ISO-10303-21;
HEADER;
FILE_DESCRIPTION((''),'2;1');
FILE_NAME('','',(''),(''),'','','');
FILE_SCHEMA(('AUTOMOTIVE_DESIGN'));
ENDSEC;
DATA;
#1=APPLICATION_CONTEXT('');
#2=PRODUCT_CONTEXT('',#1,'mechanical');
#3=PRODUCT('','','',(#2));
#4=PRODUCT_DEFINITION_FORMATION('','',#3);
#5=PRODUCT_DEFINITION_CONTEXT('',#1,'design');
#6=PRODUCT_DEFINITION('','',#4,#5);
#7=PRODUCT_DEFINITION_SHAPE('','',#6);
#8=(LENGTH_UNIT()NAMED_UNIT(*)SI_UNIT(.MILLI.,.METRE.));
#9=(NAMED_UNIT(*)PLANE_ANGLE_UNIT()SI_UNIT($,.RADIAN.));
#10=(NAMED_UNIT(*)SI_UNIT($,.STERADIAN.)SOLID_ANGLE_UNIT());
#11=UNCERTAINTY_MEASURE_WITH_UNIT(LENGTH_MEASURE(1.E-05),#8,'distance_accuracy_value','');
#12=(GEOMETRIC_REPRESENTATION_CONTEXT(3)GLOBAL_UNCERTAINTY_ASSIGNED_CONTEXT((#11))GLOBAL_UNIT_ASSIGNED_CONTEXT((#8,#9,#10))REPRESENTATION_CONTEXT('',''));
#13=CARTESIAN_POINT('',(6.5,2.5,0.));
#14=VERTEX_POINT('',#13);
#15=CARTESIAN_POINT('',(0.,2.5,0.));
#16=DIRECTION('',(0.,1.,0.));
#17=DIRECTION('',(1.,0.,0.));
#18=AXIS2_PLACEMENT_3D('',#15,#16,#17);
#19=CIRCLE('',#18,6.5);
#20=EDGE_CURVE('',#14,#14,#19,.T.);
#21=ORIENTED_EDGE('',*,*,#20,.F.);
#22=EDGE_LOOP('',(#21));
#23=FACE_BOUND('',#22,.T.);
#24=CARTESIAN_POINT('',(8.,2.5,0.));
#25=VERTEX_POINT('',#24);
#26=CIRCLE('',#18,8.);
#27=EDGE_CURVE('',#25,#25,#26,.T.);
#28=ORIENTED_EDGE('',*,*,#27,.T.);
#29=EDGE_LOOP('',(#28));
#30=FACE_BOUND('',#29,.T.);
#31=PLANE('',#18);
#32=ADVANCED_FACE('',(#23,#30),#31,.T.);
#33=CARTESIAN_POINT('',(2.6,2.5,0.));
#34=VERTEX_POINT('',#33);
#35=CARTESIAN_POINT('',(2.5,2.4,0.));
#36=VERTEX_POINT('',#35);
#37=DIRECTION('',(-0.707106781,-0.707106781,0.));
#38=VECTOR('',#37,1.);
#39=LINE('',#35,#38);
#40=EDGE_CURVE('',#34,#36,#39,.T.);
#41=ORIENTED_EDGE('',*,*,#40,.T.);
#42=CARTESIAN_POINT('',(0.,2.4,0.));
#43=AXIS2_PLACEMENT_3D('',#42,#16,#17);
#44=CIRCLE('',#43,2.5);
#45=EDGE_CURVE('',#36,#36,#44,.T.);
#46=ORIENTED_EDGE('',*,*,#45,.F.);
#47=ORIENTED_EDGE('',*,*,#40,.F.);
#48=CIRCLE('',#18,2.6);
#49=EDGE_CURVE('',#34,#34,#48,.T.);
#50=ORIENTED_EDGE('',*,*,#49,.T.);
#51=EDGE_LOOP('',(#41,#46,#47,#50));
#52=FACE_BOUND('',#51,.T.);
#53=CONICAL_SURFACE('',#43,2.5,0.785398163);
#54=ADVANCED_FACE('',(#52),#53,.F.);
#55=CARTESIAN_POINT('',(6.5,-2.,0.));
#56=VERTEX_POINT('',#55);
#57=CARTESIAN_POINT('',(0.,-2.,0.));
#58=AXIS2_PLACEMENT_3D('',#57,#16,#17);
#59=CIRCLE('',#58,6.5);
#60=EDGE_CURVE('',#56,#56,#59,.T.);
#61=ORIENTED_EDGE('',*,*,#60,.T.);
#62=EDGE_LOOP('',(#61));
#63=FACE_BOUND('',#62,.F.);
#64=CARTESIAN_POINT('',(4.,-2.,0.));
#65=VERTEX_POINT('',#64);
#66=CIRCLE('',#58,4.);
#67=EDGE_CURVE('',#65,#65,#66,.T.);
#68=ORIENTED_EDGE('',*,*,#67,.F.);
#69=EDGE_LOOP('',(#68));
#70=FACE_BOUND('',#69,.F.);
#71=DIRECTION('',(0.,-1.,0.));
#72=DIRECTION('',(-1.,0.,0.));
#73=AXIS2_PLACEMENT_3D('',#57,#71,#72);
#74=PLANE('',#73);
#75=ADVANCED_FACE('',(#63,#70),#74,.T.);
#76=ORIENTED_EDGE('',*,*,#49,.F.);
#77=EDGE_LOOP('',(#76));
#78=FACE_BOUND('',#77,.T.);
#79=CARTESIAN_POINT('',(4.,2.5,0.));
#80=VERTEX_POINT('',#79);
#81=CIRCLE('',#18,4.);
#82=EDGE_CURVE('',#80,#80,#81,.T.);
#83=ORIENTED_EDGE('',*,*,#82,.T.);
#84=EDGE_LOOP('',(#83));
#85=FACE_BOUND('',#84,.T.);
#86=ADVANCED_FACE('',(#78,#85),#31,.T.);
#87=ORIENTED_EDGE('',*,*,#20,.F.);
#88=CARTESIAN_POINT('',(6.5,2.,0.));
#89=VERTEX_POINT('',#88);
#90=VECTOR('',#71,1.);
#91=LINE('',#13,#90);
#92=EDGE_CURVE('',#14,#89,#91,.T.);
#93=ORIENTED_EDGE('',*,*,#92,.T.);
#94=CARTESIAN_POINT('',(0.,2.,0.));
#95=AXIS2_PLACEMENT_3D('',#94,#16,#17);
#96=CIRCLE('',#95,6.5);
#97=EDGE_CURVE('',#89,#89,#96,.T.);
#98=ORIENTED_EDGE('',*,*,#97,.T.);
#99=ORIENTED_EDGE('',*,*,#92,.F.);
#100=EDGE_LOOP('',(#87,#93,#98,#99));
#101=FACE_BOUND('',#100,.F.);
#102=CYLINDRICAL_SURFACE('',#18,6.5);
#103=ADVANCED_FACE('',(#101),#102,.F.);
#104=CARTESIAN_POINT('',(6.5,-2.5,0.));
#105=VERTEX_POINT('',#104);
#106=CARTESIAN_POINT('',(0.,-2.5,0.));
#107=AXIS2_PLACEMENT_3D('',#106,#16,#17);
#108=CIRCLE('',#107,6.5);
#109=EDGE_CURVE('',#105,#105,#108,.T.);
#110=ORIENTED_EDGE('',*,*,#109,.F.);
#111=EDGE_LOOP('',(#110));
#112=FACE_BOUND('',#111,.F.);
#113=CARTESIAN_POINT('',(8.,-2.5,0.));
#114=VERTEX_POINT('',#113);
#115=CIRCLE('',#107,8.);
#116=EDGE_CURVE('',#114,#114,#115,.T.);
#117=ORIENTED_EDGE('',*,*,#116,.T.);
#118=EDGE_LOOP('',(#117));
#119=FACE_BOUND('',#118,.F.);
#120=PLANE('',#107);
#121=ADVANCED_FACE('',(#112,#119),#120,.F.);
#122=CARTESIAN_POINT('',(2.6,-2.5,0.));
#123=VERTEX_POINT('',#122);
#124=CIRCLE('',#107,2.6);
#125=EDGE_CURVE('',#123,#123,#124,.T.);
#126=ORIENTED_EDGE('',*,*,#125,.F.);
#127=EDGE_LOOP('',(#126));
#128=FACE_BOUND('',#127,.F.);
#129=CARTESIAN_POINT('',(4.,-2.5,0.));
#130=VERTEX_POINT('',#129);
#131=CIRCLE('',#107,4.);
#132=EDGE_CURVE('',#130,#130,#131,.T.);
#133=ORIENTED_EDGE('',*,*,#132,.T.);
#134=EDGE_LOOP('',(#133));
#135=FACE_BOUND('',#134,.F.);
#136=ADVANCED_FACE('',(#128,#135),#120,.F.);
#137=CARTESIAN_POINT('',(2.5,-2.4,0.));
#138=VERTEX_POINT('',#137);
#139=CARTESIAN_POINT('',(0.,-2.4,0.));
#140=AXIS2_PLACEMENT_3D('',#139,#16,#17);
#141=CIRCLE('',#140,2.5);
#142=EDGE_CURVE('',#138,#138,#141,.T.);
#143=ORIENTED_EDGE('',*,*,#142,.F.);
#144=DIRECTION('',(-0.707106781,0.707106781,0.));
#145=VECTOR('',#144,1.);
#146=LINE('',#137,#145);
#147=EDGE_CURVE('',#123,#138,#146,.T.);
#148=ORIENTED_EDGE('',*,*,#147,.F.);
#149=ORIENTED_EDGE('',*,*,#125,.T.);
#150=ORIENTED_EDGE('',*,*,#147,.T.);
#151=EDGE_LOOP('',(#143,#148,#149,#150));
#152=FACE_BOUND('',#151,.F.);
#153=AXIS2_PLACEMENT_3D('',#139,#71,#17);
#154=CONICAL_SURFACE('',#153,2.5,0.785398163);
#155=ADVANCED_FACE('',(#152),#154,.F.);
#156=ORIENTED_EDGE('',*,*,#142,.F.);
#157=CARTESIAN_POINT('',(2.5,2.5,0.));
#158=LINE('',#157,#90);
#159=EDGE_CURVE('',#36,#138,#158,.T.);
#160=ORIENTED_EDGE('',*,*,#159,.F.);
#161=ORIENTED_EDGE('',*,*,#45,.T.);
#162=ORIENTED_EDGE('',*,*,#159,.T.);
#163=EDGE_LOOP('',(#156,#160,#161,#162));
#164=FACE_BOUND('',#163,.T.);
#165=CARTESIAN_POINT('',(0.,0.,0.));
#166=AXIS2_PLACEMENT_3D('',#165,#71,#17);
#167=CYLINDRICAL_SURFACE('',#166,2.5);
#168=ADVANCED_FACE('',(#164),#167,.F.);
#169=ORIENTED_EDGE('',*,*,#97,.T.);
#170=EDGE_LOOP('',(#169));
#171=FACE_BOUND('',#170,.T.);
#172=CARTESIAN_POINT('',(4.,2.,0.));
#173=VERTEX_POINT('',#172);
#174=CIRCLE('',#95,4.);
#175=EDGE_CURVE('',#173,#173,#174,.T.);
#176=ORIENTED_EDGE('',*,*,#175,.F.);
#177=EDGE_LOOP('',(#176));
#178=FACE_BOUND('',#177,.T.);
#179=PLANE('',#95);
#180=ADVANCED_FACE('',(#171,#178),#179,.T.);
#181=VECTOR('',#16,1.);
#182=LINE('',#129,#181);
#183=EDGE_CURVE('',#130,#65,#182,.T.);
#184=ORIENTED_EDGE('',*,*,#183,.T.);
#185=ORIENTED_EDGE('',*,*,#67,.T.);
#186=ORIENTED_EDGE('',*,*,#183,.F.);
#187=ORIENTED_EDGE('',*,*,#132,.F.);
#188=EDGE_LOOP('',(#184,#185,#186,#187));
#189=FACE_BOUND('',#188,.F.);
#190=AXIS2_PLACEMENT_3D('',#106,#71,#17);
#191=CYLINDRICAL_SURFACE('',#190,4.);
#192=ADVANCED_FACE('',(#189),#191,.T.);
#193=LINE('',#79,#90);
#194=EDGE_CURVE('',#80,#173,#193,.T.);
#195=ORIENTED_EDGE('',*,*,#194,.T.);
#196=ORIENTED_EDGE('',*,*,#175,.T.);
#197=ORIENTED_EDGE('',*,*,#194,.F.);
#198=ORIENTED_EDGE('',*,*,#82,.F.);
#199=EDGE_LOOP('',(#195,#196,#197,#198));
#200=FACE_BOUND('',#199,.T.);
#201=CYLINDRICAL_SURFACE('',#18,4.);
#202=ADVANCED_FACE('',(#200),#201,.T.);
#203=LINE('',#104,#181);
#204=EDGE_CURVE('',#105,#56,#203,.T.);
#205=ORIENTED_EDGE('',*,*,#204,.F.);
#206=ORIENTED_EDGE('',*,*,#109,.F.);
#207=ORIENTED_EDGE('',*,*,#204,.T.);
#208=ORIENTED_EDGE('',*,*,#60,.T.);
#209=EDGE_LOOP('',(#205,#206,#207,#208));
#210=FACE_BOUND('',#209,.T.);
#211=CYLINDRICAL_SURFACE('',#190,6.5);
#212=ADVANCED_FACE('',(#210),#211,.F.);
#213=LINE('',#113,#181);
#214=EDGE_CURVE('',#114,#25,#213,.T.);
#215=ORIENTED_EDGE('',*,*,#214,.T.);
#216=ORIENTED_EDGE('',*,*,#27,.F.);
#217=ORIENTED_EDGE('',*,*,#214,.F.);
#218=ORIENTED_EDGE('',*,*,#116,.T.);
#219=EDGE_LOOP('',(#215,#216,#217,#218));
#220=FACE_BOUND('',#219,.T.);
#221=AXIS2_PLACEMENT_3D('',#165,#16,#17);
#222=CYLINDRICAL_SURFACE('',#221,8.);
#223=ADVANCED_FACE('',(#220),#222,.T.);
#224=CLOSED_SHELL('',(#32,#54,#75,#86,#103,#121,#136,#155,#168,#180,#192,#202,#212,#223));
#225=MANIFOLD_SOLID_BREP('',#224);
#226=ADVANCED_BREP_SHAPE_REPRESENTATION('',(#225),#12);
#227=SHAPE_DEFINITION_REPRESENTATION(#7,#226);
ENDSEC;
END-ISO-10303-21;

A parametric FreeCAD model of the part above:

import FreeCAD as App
import Part
import Sketcher

V = App.Vector
Q = App.Units.Quantity


def edges_at(feature, points):
    """Names of the edges that pass closest to the given points."""
    edges = feature.Shape.Edges
    near = lambda p: min(range(len(edges)), key=lambda i: edges[i].distToShape(Part.Vertex(*p))[0])
    return sorted({f"Edge{near(p) + 1}" for p in points})

doc = App.newDocument("Part")
params = doc.addObject("Spreadsheet::Sheet", "Params")
for row, (alias, value) in enumerate([
    ("sketch1_diameter", "16 mm"),
    ("sketch1_diameter2", "5 mm"),
    ("pad1_length", "5 mm"),
    ("sketch2_diameter", "13 mm"),
    ("sketch2_diameter2", "8 mm"),
    ("pocket1_length", "0.5 mm"),
    ("chamfer_size", "0.1 mm"),
], start=1):
    params.set(f"A{row}", alias)
    params.set(f"B{row}", "=" + value)
    params.setAlias(f"B{row}", alias)

body = doc.addObject("PartDesign::Body", "Body")

# Sketch on XZ plane
sketch1 = body.newObject("Sketcher::SketchObject", "Sketch")
sketch1.AttachmentSupport = (doc.getObject("XZ_Plane"), [""])
sketch1.MapMode = "FlatFace"
sketch1.addGeometry([
    Part.Circle(V(0, 0, 0), V(0, 0, 1), 8),
    Part.Circle(V(0, 0, 0), V(0, 0, 1), 2.5),
], False)
sketch1.addConstraint([
    Sketcher.Constraint("Coincident", 0, 3, -1, 1),
    Sketcher.Constraint("Coincident", 1, 3, -1, 1),
    Sketcher.Constraint("Diameter", 0, Q("16 mm")),
    Sketcher.Constraint("Diameter", 1, Q("5 mm")),
])
sketch1.setExpression("Constraints[2]", "Params.sketch1_diameter")
sketch1.setExpression("Constraints[3]", "Params.sketch1_diameter2")
pad1 = body.newObject("PartDesign::Pad", "Pad")
pad1.Profile = sketch1
pad1.setExpression("Length", "Params.pad1_length")
pad1.Midplane = True

# Sketch on XZ plane
sketch2 = body.newObject("Sketcher::SketchObject", "Sketch001")
sketch2.AttachmentSupport = (doc.getObject("XZ_Plane"), [""])
sketch2.MapMode = "FlatFace"
sketch2.AttachmentOffset = App.Placement(V(0, 0, -2.5), App.Rotation())
sketch2.addGeometry([
    Part.Circle(V(0, 0, 0), V(0, 0, 1), 6.5),
    Part.Circle(V(0, 0, 0), V(0, 0, 1), 4),
], False)
sketch2.addConstraint([
    Sketcher.Constraint("Coincident", 0, 3, -1, 1),
    Sketcher.Constraint("Coincident", 1, 3, -1, 1),
    Sketcher.Constraint("Diameter", 0, Q("13 mm")),
    Sketcher.Constraint("Diameter", 1, Q("8 mm")),
])
sketch2.setExpression("Constraints[2]", "Params.sketch2_diameter")
sketch2.setExpression("Constraints[3]", "Params.sketch2_diameter2")
pocket1 = body.newObject("PartDesign::Pocket", "Pocket")
pocket1.Profile = sketch2
pocket1.setExpression("Length", "Params.pocket1_length")
pocket1.Reversed = True
doc.recompute()

mirrored = body.newObject("PartDesign::Mirrored", "Mirrored")
mirrored.Originals = [pocket1]
mirrored.MirrorPlane = (doc.getObject("XZ_Plane"), [""])
body.Tip = mirrored
doc.recompute()

chamfer = body.newObject("PartDesign::Chamfer", "Chamfer")
chamfer.Base = (mirrored, edges_at(mirrored, [(-2.5, -2.5, 0), (-2.5, 2.5, 0)]))
chamfer.setExpression("Size", "Params.chamfer_size")

doc.recompute()
